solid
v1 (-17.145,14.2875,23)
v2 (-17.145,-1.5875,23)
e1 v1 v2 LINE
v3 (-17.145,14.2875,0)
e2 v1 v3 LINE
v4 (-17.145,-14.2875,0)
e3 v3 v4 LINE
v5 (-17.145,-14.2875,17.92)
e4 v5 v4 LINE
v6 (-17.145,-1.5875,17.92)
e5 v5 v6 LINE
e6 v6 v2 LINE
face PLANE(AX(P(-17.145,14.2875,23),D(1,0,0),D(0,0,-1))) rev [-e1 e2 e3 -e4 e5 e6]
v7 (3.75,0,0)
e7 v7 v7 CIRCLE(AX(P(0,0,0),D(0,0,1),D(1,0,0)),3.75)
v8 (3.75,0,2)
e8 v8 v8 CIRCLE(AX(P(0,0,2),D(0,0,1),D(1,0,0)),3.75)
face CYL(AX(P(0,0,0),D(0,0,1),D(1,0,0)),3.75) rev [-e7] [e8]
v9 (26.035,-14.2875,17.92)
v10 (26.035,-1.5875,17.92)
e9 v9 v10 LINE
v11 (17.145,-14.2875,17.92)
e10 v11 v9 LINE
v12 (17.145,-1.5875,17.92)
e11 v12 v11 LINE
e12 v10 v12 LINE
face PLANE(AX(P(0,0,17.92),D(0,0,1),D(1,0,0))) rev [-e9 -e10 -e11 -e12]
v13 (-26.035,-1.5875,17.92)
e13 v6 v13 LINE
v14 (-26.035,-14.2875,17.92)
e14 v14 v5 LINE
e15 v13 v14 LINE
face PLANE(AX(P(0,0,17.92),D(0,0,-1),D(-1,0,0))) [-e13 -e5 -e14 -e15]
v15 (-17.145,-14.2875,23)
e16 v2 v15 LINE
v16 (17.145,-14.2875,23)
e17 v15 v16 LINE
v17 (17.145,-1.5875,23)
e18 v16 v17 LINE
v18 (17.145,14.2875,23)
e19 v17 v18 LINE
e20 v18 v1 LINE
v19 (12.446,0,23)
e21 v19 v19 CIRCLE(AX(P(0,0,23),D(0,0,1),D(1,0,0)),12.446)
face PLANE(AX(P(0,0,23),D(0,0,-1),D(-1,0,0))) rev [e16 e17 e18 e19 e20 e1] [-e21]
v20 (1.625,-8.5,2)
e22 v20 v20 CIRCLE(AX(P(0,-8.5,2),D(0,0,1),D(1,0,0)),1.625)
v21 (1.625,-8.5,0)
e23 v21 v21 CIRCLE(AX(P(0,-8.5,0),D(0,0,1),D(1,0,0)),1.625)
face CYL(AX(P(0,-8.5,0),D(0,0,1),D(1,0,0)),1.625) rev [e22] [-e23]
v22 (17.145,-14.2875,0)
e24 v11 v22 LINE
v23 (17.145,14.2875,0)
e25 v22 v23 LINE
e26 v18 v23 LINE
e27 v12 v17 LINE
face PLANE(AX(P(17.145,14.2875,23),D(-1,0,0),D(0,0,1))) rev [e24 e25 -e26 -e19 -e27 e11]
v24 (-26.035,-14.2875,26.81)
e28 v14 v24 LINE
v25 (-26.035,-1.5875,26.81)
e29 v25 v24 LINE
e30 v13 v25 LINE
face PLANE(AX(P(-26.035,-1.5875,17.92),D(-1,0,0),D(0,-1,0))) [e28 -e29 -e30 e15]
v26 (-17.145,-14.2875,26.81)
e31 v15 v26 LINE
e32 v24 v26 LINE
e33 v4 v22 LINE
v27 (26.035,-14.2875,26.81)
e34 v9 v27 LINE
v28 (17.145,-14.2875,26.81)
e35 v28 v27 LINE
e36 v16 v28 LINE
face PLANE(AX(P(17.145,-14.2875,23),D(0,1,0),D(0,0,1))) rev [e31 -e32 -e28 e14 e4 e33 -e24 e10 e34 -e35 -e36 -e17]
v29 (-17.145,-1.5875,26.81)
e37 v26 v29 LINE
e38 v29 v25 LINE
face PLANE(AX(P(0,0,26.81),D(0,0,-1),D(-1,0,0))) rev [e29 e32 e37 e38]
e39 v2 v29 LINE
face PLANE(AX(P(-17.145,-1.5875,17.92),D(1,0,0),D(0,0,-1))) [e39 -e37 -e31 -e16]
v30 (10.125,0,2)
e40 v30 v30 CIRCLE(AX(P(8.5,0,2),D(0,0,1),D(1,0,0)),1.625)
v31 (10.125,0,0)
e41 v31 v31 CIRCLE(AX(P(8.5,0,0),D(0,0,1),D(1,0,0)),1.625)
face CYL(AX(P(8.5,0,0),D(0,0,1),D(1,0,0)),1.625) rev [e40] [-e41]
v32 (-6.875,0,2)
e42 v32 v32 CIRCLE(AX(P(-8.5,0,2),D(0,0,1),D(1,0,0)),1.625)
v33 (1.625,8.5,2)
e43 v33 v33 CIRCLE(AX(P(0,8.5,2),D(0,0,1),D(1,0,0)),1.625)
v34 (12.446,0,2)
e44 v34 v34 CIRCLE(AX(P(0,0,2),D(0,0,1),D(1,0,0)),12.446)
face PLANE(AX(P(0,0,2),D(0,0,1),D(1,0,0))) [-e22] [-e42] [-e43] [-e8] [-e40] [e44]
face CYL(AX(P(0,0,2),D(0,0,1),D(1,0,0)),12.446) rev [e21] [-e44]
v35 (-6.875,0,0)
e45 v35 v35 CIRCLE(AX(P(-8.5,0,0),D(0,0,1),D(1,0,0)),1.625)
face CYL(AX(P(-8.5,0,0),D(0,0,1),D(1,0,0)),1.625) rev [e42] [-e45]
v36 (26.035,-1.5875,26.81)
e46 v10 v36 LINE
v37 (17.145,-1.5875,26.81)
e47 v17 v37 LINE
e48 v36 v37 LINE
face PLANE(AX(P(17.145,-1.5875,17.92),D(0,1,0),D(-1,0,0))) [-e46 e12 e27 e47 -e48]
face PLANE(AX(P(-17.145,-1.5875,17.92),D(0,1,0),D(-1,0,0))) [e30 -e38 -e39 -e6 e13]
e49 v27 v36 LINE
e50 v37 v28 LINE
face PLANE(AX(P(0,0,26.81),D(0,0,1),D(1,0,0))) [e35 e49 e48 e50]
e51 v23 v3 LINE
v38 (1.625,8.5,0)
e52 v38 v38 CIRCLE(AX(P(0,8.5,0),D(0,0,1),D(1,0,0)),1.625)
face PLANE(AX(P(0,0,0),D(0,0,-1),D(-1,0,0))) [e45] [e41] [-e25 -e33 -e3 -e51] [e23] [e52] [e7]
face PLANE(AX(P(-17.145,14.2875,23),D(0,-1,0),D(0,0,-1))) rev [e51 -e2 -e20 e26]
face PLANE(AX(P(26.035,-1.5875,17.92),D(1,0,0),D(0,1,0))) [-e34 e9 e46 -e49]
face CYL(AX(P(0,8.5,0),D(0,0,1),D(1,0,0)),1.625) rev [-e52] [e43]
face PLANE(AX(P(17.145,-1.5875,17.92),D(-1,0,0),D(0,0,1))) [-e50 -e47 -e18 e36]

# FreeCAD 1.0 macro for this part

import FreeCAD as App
import Part
import Sketcher

V = App.Vector
Q = App.Units.Quantity

doc = App.newDocument("Part")
params = doc.addObject("Spreadsheet::Sheet", "Params")
for row, (alias, value) in enumerate([
    ("sketch1_width", "1.35 in"),
    ("sketch1_height", "1.125 in"),
    ("pad1_length", "23 mm"),
    ("sketch2_diameter", "0.98 in"),
    ("pocket1_length", "21 mm"),
    ("sketch4_height", "0.5 in"),
    ("sketch4_width", "0.35 in"),
    ("pad2_length", "0.15 in"),
    ("pad2_length2", "0.2 in"),
], start=1):
    params.set(f"A{row}", alias)
    params.set(f"B{row}", "=" + value)
    params.setAlias(f"B{row}", alias)

body = doc.addObject("PartDesign::Body", "Body")

sketch1 = doc.addObject("Sketcher::SketchObject", "Sketch")
body.addObject(sketch1)
sketch1.AttachmentSupport = (doc.XY_Plane, [""])
sketch1.MapMode = "FlatFace"
sketch1.addGeometry(Part.LineSegment(V(-17, 14, 0), V(-17, -14, 0)), False)
sketch1.addGeometry(Part.LineSegment(V(-17, -14, 0), V(17, -14, 0)), False)
sketch1.addGeometry(Part.LineSegment(V(17, -14, 0), V(17, 14, 0)), False)
sketch1.addGeometry(Part.LineSegment(V(17, 14, 0), V(-17, 14, 0)), False)
sketch1.addConstraint(Sketcher.Constraint("Coincident", 0, 2, 1, 1))
sketch1.addConstraint(Sketcher.Constraint("Coincident", 1, 2, 2, 1))
sketch1.addConstraint(Sketcher.Constraint("Coincident", 2, 2, 3, 1))
sketch1.addConstraint(Sketcher.Constraint("Coincident", 3, 2, 0, 1))
sketch1.addConstraint(Sketcher.Constraint("Vertical", 0))
sketch1.addConstraint(Sketcher.Constraint("Horizontal", 1))
sketch1.addConstraint(Sketcher.Constraint("Vertical", 2))
sketch1.addConstraint(Sketcher.Constraint("Horizontal", 3))
sketch1.addConstraint(Sketcher.Constraint("Symmetric", 0, 2, 2, 2, -1, 1))
sketch1.addConstraint(Sketcher.Constraint("DistanceX", 1, 1, 1, 2, Q("1.35 in")))
sketch1.addConstraint(Sketcher.Constraint("DistanceY", 0, 2, 0, 1, Q("1.125 in")))
sketch1.setExpression("Constraints[9]", "Params.sketch1_width")
sketch1.setExpression("Constraints[10]", "Params.sketch1_height")
pad1 = doc.addObject("PartDesign::Pad", "Pad")
body.addObject(pad1)
pad1.Profile = sketch1
pad1.setExpression("Length", "Params.pad1_length")

sketch2 = doc.addObject("Sketcher::SketchObject", "Sketch001")
body.addObject(sketch2)
sketch2.AttachmentSupport = (doc.XY_Plane, [""])
sketch2.MapMode = "FlatFace"
sketch2.AttachmentOffset = App.Placement(V(0, 0, 23), App.Rotation())
sketch2.addGeometry(Part.Circle(V(0, 0, 0), V(0, 0, 1), 12), False)
sketch2.addConstraint(Sketcher.Constraint("Coincident", 0, 3, -1, 1))
sketch2.addConstraint(Sketcher.Constraint("Diameter", 0, Q("0.98 in")))
sketch2.setExpression("Constraints[1]", "Params.sketch2_diameter")
pocket1 = doc.addObject("PartDesign::Pocket", "Pocket")
body.addObject(pocket1)
pocket1.Profile = sketch2
pocket1.setExpression("Length", "Params.pocket1_length")

sketch3 = doc.addObject("Sketcher::SketchObject", "Sketch002")
body.addObject(sketch3)
sketch3.AttachmentSupport = (doc.XY_Plane, [""])
sketch3.MapMode = "FlatFace"
sketch3.AttachmentOffset = App.Placement(V(0, 0, 2), App.Rotation())
sketch3.addGeometry(Part.Circle(V(0, 8.5, 0), V(0, 0, 1), 1.6), False)
sketch3.addGeometry(Part.Circle(V(-8.5, 0, 0), V(0, 0, 1), 1.6), False)
sketch3.addGeometry(Part.Circle(V(8.5, 0, 0), V(0, 0, 1), 1.6), False)
sketch3.addGeometry(Part.Circle(V(0, -8.5, 0), V(0, 0, 1), 1.6), False)
sketch3.addGeometry(Part.Circle(V(0, 0, 0), V(0, 0, 1), 3.8), False)
sketch3.addConstraint(Sketcher.Constraint("Coincident", 4, 3, -1, 1))
sketch3.addConstraint(Sketcher.Constraint("Equal", 0, 1))
sketch3.addConstraint(Sketcher.Constraint("Equal", 1, 2))
sketch3.addConstraint(Sketcher.Constraint("Equal", 2, 3))
sketch3.addConstraint(Sketcher.Constraint("Symmetric", 1, 3, 2, 3, -1, 1))
sketch3.addConstraint(Sketcher.Constraint("Symmetric", 0, 3, 3, 3, -1, 1))
sketch3.addConstraint(Sketcher.Constraint("PointOnObject", 0, 3, -2))
sketch3.addConstraint(Sketcher.Constraint("PointOnObject", 1, 3, -1))
sketch3.addConstraint(Sketcher.Constraint("Diameter", 0, Q("3.25 mm")))
sketch3.addConstraint(Sketcher.Constraint("Diameter", 4, Q("7.5 mm")))
sketch3.addConstraint(Sketcher.Constraint("DistanceY", -1, 1, 0, 3, Q("8.5 mm")))
sketch3.addConstraint(Sketcher.Constraint("DistanceX", 1, 3, -1, 1, Q("8.5 mm")))
pocket2 = doc.addObject("PartDesign::Pocket", "Pocket001")
body.addObject(pocket2)
pocket2.Profile = sketch3
pocket2.Type = "ThroughAll"

sketch4 = doc.addObject("Sketcher::SketchObject", "Sketch003")
body.addObject(sketch4)
sketch4.AttachmentSupport = (doc.XY_Plane, [""])
sketch4.MapMode = "FlatFace"
sketch4.AttachmentOffset = App.Placement(V(0, 0, 23), App.Rotation())
sketch4.addGeometry(Part.LineSegment(V(-26, -2, 0), V(-26, -14, 0)), False)
sketch4.addGeometry(Part.LineSegment(V(-26, -14, 0), V(-17, -14, 0)), False)
sketch4.addGeometry(Part.LineSegment(V(-17, -14, 0), V(-17, -2, 0)), False)
sketch4.addGeometry(Part.LineSegment(V(-17, -2, 0), V(-26, -2, 0)), False)
sketch4.addGeometry(Part.LineSegment(V(17, -2, 0), V(17, -14, 0)), False)
sketch4.addGeometry(Part.LineSegment(V(17, -14, 0), V(26, -14, 0)), False)
sketch4.addGeometry(Part.LineSegment(V(26, -14, 0), V(26, -2, 0)), False)
sketch4.addGeometry(Part.LineSegment(V(26, -2, 0), V(17, -2, 0)), False)
sketch4.addConstraint(Sketcher.Constraint("Coincident", 0, 2, 1, 1))
sketch4.addConstraint(Sketcher.Constraint("Coincident", 1, 2, 2, 1))
sketch4.addConstraint(Sketcher.Constraint("Coincident", 2, 2, 3, 1))
sketch4.addConstraint(Sketcher.Constraint("Coincident", 3, 2, 0, 1))
sketch4.addConstraint(Sketcher.Constraint("Coincident", 4, 2, 5, 1))
sketch4.addConstraint(Sketcher.Constraint("Coincident", 5, 2, 6, 1))
sketch4.addConstraint(Sketcher.Constraint("Coincident", 6, 2, 7, 1))
sketch4.addConstraint(Sketcher.Constraint("Coincident", 7, 2, 4, 1))
sketch4.addConstraint(Sketcher.Constraint("Vertical", 0))
sketch4.addConstraint(Sketcher.Constraint("Horizontal", 1))
sketch4.addConstraint(Sketcher.Constraint("Vertical", 2))
sketch4.addConstraint(Sketcher.Constraint("Horizontal", 3))
sketch4.addConstraint(Sketcher.Constraint("Vertical", 4))
sketch4.addConstraint(Sketcher.Constraint("Horizontal", 5))
sketch4.addConstraint(Sketcher.Constraint("Vertical", 6))
sketch4.addConstraint(Sketcher.Constraint("Horizontal", 7))
sketch4.addConstraint(Sketcher.Constraint("Symmetric", 1, 2, 4, 2, -2))
sketch4.addConstraint(Sketcher.Constraint("Symmetric", 3, 2, 6, 2, -2))
sketch4.addConstraint(Sketcher.Constraint("DistanceY", 0, 2, 0, 1, Q("0.5 in")))
sketch4.addConstraint(Sketcher.Constraint("DistanceX", 1, 1, 1, 2, Q("0.35 in")))
sketch4.addConstraint(Sketcher.Constraint("DistanceX", 0, 2, 4, 2, Q("1.7 in")))
sketch4.addConstraint(Sketcher.Constraint("DistanceY", 0, 2, -1, 1, Q("0.5625 in")))
sketch4.setExpression("Constraints[18]", "Params.sketch4_height")
sketch4.setExpression("Constraints[19]", "Params.sketch4_width")
pad2 = doc.addObject("PartDesign::Pad", "Pad001")
body.addObject(pad2)
pad2.Profile = sketch4
pad2.Type = "TwoLengths"
pad2.setExpression("Length", "Params.pad2_length")
pad2.setExpression("Length2", "Params.pad2_length2")

doc.recompute()
